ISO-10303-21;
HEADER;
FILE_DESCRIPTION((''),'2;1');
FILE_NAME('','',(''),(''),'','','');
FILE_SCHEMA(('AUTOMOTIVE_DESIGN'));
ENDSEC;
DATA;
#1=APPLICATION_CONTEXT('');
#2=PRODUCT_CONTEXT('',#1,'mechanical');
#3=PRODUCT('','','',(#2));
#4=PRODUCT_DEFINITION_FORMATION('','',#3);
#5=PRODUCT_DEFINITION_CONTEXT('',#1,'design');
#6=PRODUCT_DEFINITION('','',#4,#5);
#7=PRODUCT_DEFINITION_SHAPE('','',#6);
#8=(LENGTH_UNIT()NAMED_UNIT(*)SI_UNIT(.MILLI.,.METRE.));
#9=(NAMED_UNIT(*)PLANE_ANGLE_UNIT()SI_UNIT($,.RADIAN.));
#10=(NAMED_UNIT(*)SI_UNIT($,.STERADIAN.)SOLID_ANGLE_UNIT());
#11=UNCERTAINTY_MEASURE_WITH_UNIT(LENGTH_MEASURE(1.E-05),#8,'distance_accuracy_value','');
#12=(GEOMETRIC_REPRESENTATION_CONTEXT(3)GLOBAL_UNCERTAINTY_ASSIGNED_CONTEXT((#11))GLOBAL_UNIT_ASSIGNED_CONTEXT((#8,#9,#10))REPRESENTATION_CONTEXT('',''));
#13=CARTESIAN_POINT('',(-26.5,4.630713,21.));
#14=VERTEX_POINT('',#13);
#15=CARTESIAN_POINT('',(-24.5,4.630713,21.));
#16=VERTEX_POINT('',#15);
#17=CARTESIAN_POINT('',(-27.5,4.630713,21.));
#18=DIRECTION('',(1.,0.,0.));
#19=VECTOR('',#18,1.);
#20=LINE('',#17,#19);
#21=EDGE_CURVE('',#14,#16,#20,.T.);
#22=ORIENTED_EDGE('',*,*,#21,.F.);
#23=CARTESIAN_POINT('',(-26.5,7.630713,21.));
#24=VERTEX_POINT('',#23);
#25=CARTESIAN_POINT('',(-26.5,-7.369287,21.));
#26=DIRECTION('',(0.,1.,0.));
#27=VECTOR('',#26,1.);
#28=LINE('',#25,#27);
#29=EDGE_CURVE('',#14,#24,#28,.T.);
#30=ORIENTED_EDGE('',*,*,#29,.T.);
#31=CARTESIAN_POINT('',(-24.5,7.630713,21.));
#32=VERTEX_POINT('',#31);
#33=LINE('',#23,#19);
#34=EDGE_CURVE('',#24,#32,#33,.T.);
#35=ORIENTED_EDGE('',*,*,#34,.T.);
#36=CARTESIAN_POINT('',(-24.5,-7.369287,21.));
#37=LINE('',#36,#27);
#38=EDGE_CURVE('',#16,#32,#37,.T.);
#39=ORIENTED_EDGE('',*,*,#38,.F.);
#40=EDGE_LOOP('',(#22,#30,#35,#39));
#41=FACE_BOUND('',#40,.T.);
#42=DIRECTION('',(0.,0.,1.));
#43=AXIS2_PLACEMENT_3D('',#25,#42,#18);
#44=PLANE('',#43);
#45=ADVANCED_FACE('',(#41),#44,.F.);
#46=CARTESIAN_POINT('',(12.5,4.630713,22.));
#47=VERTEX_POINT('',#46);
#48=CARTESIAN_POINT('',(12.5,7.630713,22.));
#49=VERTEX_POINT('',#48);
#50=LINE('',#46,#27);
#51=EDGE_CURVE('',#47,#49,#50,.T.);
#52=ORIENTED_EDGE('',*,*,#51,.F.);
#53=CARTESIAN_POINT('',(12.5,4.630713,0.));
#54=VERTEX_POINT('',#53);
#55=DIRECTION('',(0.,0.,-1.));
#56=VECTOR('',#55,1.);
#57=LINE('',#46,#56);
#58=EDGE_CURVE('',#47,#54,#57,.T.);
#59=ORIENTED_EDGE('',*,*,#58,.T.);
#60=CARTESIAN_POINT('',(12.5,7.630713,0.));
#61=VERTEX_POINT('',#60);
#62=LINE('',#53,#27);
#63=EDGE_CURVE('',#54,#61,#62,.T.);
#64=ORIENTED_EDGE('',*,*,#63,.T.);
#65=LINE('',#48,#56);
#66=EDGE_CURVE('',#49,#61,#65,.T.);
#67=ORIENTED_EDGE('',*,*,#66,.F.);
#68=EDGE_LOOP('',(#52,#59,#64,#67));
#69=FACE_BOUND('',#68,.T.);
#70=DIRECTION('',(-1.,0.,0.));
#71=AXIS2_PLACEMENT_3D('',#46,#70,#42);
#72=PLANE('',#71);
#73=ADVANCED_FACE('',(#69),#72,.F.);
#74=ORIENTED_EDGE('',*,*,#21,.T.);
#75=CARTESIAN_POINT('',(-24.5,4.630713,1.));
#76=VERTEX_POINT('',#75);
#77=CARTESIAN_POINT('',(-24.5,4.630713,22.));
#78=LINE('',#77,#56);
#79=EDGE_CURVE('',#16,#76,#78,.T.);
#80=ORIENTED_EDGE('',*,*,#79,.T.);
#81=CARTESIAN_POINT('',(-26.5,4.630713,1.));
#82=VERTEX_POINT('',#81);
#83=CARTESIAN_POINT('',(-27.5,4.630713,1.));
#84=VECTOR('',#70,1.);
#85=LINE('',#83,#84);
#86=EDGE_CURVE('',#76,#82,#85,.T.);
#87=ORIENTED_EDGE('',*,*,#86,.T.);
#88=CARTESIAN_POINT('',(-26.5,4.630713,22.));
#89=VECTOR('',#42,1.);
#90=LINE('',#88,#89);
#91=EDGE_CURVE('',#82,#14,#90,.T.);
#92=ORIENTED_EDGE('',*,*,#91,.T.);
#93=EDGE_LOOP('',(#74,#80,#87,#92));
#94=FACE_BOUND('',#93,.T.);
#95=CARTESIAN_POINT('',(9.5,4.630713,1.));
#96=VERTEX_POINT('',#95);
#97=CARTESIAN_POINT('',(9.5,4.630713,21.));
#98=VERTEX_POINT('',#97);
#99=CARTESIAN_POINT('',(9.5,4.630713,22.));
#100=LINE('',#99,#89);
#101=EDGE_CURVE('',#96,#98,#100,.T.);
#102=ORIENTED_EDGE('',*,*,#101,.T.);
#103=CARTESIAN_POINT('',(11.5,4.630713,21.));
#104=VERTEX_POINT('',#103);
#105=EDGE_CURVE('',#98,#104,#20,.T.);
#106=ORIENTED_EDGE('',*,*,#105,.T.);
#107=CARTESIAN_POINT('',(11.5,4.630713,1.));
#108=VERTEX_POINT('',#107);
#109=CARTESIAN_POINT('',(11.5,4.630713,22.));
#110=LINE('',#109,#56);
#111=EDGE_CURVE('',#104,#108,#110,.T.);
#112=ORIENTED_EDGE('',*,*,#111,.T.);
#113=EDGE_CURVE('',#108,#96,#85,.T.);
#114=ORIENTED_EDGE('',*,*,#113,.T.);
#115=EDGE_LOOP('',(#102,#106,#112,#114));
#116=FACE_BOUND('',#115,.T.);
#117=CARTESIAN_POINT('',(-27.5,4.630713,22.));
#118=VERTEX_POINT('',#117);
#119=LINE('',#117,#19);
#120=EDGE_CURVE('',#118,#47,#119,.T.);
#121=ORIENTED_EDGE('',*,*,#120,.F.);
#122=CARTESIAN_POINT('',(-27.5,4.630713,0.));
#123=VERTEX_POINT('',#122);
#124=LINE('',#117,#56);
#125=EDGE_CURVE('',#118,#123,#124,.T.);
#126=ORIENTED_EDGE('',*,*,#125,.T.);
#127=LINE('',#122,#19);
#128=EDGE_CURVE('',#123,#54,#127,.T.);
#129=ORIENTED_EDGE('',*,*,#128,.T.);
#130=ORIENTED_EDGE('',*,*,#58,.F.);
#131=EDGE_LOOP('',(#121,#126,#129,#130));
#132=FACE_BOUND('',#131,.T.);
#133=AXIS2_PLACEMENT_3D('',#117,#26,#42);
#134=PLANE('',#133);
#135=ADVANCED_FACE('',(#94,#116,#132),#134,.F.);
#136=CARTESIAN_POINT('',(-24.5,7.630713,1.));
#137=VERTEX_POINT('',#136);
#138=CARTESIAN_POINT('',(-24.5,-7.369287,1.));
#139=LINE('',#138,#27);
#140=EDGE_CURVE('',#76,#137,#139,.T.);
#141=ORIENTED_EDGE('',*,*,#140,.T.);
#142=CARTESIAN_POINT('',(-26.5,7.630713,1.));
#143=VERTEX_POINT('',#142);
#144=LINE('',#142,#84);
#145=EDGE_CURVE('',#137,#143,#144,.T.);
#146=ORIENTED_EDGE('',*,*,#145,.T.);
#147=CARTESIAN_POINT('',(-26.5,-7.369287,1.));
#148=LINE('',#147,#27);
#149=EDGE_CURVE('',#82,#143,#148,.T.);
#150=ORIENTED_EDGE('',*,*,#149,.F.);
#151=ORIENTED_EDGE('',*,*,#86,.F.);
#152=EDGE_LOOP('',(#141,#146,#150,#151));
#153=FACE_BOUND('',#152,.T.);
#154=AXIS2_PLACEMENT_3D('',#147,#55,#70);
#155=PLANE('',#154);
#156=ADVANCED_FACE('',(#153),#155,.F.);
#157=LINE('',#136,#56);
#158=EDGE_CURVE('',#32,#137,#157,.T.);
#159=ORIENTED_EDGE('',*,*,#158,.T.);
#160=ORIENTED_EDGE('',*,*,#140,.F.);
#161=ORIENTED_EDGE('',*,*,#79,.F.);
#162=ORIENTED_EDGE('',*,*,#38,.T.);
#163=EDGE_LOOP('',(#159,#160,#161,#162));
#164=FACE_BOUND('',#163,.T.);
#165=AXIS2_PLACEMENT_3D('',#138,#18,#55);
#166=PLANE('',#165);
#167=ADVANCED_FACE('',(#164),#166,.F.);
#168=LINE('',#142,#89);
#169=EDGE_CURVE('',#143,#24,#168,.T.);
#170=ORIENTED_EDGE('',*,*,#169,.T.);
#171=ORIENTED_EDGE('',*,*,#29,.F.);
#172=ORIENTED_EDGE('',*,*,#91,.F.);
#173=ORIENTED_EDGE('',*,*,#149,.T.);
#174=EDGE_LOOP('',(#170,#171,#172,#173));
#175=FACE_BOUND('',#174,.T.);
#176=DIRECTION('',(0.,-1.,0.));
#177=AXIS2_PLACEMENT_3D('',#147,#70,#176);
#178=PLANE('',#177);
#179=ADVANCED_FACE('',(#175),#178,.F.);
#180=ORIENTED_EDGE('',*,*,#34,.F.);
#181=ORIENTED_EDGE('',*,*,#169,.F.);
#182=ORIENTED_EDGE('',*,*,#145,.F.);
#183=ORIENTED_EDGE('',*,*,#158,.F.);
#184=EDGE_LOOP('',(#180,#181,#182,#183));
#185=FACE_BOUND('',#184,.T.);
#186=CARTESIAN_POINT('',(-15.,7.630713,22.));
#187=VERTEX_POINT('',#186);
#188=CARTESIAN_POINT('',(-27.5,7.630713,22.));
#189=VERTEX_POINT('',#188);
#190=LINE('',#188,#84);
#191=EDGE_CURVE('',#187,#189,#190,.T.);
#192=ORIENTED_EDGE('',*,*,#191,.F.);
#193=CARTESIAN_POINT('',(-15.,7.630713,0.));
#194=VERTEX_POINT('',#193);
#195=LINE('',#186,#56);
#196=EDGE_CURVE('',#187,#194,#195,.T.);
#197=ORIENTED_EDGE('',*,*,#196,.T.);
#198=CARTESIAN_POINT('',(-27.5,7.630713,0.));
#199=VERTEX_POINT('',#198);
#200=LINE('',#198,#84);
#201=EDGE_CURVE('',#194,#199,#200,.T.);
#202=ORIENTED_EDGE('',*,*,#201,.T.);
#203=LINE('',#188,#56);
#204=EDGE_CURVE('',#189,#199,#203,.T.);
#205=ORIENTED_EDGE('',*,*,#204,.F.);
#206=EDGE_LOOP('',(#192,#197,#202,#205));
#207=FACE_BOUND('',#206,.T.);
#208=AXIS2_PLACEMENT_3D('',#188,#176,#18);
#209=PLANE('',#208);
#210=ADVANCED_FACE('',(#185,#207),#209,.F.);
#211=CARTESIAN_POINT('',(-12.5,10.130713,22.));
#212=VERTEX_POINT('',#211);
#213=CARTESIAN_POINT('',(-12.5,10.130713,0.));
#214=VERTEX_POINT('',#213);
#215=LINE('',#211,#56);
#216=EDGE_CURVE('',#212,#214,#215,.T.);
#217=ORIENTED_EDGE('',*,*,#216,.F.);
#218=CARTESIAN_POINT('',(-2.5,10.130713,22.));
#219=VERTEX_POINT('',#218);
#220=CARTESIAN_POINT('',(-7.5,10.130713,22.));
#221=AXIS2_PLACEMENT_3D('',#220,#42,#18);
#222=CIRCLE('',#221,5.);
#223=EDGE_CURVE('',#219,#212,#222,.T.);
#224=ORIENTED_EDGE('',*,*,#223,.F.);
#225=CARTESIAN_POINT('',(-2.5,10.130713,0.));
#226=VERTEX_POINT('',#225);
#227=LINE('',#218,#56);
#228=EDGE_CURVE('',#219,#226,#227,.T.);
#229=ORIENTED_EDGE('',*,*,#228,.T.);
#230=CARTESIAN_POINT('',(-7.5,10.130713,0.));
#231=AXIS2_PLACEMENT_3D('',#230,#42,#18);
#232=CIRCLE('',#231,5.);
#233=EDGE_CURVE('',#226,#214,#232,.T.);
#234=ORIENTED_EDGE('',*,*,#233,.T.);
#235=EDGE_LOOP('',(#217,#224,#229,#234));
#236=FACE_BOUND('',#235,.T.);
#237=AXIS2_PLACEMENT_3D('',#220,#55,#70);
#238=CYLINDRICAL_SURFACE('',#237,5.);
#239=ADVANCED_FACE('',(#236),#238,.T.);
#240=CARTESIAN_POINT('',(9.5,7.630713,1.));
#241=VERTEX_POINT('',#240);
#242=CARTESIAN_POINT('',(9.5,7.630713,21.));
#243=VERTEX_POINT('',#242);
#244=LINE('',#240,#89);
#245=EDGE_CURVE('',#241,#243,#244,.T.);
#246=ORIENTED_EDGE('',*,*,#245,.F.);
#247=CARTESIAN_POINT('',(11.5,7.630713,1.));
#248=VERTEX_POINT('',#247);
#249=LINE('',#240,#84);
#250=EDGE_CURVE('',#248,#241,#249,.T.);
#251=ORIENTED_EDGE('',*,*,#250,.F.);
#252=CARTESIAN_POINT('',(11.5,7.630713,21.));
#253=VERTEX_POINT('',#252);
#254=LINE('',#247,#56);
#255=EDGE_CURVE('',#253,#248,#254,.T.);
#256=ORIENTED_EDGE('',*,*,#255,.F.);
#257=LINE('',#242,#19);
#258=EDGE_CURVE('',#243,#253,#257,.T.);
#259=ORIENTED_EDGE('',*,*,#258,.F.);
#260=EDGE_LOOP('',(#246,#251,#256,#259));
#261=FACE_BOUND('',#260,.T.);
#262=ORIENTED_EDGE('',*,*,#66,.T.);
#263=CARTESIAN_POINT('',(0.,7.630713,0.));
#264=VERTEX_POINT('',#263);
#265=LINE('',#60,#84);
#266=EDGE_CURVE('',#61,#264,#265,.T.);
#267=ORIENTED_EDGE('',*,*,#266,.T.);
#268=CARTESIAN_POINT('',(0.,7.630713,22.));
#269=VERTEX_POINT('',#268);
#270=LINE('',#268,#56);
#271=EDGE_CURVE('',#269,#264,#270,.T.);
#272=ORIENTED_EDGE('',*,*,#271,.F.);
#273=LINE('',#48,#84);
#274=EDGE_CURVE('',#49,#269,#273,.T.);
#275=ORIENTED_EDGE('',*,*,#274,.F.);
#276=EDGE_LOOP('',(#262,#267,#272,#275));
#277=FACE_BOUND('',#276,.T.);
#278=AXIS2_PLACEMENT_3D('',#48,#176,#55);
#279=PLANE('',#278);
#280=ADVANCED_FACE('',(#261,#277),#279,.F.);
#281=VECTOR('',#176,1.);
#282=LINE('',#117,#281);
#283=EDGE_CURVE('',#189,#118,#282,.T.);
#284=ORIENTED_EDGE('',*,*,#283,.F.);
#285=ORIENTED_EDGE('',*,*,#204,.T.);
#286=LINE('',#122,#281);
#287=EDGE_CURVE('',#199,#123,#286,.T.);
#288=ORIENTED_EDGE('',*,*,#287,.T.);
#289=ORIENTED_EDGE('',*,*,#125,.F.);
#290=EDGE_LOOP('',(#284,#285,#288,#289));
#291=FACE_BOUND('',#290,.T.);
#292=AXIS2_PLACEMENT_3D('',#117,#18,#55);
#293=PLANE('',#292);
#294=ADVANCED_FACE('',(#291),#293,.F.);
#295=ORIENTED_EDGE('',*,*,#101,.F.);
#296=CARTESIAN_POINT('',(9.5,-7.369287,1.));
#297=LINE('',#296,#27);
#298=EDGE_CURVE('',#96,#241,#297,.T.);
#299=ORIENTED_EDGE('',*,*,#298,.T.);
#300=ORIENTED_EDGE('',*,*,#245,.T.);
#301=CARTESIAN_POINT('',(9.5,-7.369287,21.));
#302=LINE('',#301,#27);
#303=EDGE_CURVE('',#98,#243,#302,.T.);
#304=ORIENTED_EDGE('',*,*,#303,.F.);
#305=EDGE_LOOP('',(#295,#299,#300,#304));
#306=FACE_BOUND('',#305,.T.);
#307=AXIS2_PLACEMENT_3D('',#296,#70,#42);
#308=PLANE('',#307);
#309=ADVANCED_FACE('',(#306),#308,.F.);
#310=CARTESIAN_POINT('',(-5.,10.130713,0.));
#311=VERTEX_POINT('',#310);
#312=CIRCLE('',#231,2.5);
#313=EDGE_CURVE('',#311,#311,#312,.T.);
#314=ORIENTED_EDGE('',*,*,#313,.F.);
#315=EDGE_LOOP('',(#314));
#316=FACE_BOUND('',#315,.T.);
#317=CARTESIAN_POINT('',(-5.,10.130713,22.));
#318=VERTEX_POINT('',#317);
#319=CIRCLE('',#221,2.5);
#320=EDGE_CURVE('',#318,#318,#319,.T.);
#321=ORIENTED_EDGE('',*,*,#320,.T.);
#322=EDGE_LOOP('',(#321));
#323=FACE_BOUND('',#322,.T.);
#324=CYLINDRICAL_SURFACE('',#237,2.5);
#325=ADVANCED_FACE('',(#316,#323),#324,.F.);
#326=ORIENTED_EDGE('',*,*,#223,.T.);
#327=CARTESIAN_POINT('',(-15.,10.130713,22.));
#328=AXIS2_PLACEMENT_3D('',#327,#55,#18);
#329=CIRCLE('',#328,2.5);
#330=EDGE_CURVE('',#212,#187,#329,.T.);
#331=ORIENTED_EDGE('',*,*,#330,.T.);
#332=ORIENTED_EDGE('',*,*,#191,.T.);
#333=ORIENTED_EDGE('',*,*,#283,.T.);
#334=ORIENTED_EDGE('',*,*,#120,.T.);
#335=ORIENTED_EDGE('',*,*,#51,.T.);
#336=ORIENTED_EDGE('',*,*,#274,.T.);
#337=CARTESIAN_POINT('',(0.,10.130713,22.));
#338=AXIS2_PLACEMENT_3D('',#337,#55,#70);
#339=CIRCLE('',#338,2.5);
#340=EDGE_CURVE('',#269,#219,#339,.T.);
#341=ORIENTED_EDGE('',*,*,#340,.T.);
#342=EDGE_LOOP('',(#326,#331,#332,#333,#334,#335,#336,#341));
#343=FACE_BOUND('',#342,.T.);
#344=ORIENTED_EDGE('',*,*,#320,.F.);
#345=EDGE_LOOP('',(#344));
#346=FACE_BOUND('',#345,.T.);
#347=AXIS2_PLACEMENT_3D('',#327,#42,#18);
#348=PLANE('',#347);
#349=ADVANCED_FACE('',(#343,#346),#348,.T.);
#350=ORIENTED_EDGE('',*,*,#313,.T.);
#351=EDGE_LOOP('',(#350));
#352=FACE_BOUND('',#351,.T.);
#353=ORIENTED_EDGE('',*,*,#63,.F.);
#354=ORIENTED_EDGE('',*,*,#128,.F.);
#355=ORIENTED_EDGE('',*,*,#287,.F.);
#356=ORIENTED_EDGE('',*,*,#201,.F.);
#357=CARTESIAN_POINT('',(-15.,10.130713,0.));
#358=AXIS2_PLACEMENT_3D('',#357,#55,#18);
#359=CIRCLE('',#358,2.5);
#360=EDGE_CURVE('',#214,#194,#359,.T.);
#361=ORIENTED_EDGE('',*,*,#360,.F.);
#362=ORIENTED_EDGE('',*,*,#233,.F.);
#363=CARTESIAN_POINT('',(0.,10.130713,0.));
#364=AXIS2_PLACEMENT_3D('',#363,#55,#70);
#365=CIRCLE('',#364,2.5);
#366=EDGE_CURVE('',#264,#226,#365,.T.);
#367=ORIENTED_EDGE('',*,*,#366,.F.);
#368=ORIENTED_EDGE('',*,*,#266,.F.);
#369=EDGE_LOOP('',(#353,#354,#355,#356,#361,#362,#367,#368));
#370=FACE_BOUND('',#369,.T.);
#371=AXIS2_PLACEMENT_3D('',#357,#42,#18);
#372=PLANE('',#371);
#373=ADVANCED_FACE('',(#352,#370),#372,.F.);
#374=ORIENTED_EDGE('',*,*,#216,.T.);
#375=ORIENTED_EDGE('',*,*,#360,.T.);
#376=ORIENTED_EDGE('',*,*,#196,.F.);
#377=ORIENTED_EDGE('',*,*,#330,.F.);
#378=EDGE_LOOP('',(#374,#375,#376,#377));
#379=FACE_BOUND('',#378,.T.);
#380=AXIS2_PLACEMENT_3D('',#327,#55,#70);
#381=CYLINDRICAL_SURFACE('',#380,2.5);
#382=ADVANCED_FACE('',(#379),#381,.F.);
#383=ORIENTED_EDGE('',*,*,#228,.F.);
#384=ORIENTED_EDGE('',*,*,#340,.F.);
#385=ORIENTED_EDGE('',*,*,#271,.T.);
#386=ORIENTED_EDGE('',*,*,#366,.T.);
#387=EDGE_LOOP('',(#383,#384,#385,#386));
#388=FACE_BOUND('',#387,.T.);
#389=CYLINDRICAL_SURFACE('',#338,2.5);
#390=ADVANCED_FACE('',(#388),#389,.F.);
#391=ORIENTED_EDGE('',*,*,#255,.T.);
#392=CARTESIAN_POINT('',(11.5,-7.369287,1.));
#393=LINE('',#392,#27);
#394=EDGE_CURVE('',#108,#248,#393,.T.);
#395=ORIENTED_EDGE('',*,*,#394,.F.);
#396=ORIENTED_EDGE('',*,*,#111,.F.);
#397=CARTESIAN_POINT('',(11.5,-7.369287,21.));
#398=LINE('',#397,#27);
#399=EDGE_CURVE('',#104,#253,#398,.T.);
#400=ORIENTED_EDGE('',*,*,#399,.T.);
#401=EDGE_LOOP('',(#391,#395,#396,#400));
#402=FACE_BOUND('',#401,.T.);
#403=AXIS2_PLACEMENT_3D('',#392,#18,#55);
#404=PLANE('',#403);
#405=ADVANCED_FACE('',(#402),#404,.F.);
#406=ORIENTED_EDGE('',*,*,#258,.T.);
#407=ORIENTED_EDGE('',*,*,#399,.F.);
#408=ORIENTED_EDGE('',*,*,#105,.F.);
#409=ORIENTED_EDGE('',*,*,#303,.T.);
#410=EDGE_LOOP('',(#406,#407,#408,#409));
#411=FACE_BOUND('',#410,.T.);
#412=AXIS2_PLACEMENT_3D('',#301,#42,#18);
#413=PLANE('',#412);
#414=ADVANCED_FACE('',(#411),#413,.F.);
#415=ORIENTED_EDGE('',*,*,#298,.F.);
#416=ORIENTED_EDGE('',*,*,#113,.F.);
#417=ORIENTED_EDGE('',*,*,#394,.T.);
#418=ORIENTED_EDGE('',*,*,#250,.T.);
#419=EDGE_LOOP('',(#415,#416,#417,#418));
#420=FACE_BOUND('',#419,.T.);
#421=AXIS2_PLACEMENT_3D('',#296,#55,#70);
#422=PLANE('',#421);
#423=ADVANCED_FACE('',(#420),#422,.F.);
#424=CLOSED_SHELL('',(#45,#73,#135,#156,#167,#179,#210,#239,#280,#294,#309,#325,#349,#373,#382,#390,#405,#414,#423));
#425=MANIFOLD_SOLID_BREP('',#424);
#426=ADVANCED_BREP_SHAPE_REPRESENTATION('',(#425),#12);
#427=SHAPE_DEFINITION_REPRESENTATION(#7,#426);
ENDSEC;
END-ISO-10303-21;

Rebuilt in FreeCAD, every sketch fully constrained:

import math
import FreeCAD as App
import Part
import Sketcher
from FreeCAD import Vector


def add_polygon(sketch, points):
    """Adds a closed chain of lines whose ends are joined by coincident constraints."""
    first, n = sketch.GeometryCount, len(points)
    for a, b in zip(points, points[1:] + points[:1]):
        sketch.addGeometry(Part.LineSegment(App.Vector(*a, 0), App.Vector(*b, 0)), False)
    for i in range(n):
        sketch.addConstraint(Sketcher.Constraint("Coincident", first + i, 2, first + (i + 1) % n, 1))

doc = App.newDocument("Part")
body = doc.addObject("PartDesign::Body", "Body")

sketch1 = body.newObject("Sketcher::SketchObject", "Sketch")
sketch1.AttachmentSupport = (doc.getObject("XY_Plane"), [""])
sketch1.MapMode = "FlatFace"
sketch1.addGeometry(Part.LineSegment(Vector(-27.5, 4.6, 0), Vector(12.5, 4.6, 0)), False)
sketch1.addGeometry(Part.LineSegment(Vector(12.5, 4.6, 0), Vector(12.5, 7.6, 0)), False)
sketch1.addGeometry(Part.LineSegment(Vector(12.5, 7.6, 0), Vector(0, 7.6, 0)), False)
sketch1.addGeometry(Part.ArcOfCircle(Part.Circle(Vector(0, 10.1, 0), Vector(0, 0, 1), 2.5), math.radians(180), math.radians(270)), False)
sketch1.addGeometry(Part.ArcOfCircle(Part.Circle(Vector(-7.5, 10.1, 0), Vector(0, 0, 1), 5), math.radians(0), math.radians(180)), False)
sketch1.addGeometry(Part.ArcOfCircle(Part.Circle(Vector(-15, 10.1, 0), Vector(0, 0, 1), 2.5), math.radians(-90), math.radians(0)), False)
sketch1.addGeometry(Part.LineSegment(Vector(-15, 7.6, 0), Vector(-27.5, 7.6, 0)), False)
sketch1.addGeometry(Part.LineSegment(Vector(-27.5, 7.6, 0), Vector(-27.5, 4.6, 0)), False)
sketch1.addGeometry(Part.Circle(Vector(-7.5, 10.1, 0), Vector(0, 0, 1), 2.5), False)
sketch1.addConstraint(Sketcher.Constraint("Coincident", 0, 2, 1, 1))
sketch1.addConstraint(Sketcher.Constraint("Coincident", 1, 2, 2, 1))
sketch1.addConstraint(Sketcher.Constraint("Tangent", 2, 2, 3, 2))
sketch1.addConstraint(Sketcher.Constraint("Tangent", 3, 1, 4, 1))
sketch1.addConstraint(Sketcher.Constraint("Tangent", 4, 2, 5, 2))
sketch1.addConstraint(Sketcher.Constraint("Tangent", 5, 1, 6, 1))
sketch1.addConstraint(Sketcher.Constraint("Coincident", 6, 2, 7, 1))
sketch1.addConstraint(Sketcher.Constraint("Coincident", 7, 2, 0, 1))
sketch1.addConstraint(Sketcher.Constraint("Horizontal", 0))
sketch1.addConstraint(Sketcher.Constraint("Vertical", 1))
sketch1.addConstraint(Sketcher.Constraint("Horizontal", 2))
sketch1.addConstraint(Sketcher.Constraint("Horizontal", 6))
sketch1.addConstraint(Sketcher.Constraint("Vertical", 7))
sketch1.addConstraint(Sketcher.Constraint("Coincident", 8, 3, 4, 3))
sketch1.addConstraint(Sketcher.Constraint("Equal", 3, 5))
sketch1.addConstraint(Sketcher.Constraint("Equal", 5, 8))
sketch1.addConstraint(Sketcher.Constraint("PointOnObject", 3, 3, -2))
sketch1.addConstraint(Sketcher.Constraint("Horizontal", 3, 3, 4, 3))
sketch1.addConstraint(Sketcher.Constraint("Horizontal", 4, 3, 5, 3))
sketch1.addConstraint(Sketcher.Constraint("Equal", 2, 6))
sketch1.addConstraint(Sketcher.Constraint("Diameter", 8, 5.0))
sketch1.addConstraint(Sketcher.Constraint("Radius", 4, 5.0))
sketch1.addConstraint(Sketcher.Constraint("DistanceX", 0, 1, 0, 2, 40.0))
sketch1.addConstraint(Sketcher.Constraint("DistanceY", 1, 1, 1, 2, 3.0))
sketch1.addConstraint(Sketcher.Constraint("DistanceY", -1, 1, 3, 3, 10.130713))
pad1 = body.newObject("PartDesign::Pad", "Pad")
pad1.Profile = sketch1
pad1.Length = 22

sketch2 = body.newObject("Sketcher::SketchObject", "Sketch001")
sketch2.AttachmentSupport = (doc.getObject("XZ_Plane"), [""])
sketch2.MapMode = "FlatFace"
sketch2.AttachmentOffset = App.Placement(Vector(0, 0, -7.630713), App.Rotation())
add_polygon(sketch2, [(-26.5, 1), (-26.5, 21), (-24.5, 21), (-24.5, 1)])
add_polygon(sketch2, [(9.5, 1), (9.5, 21), (11.5, 21), (11.5, 1)])
sketch2.addConstraint(Sketcher.Constraint("Vertical", 0))
sketch2.addConstraint(Sketcher.Constraint("Horizontal", 1))
sketch2.addConstraint(Sketcher.Constraint("Vertical", 2))
sketch2.addConstraint(Sketcher.Constraint("Horizontal", 3))
sketch2.addConstraint(Sketcher.Constraint("Vertical", 4))
sketch2.addConstraint(Sketcher.Constraint("Horizontal", 5))
sketch2.addConstraint(Sketcher.Constraint("Vertical", 6))
sketch2.addConstraint(Sketcher.Constraint("Horizontal", 7))
sketch2.addConstraint(Sketcher.Constraint("Horizontal", 1, 2, 4, 2))
sketch2.addConstraint(Sketcher.Constraint("Horizontal", 3, 2, 6, 2))
sketch2.addConstraint(Sketcher.Constraint("Equal", 3, 5))
sketch2.addConstraint(Sketcher.Constraint("DistanceX", 1, 1, 1, 2, 2.0))
sketch2.addConstraint(Sketcher.Constraint("DistanceY", 0, 1, 0, 2, 20.0))
sketch2.addConstraint(Sketcher.Constraint("DistanceY", -1, 1, 0, 2, 21.0))
sketch2.addConstraint(Sketcher.Constraint("DistanceX", 1, 2, 4, 2, 34.0))
sketch2.addConstraint(Sketcher.Constraint("DistanceX", 0, 2, -1, 1, 26.5))
pocket1 = body.newObject("PartDesign::Pocket", "Pocket")
pocket1.Profile = sketch2
pocket1.Length = 15
pocket1.Reversed = True

doc.recompute()
